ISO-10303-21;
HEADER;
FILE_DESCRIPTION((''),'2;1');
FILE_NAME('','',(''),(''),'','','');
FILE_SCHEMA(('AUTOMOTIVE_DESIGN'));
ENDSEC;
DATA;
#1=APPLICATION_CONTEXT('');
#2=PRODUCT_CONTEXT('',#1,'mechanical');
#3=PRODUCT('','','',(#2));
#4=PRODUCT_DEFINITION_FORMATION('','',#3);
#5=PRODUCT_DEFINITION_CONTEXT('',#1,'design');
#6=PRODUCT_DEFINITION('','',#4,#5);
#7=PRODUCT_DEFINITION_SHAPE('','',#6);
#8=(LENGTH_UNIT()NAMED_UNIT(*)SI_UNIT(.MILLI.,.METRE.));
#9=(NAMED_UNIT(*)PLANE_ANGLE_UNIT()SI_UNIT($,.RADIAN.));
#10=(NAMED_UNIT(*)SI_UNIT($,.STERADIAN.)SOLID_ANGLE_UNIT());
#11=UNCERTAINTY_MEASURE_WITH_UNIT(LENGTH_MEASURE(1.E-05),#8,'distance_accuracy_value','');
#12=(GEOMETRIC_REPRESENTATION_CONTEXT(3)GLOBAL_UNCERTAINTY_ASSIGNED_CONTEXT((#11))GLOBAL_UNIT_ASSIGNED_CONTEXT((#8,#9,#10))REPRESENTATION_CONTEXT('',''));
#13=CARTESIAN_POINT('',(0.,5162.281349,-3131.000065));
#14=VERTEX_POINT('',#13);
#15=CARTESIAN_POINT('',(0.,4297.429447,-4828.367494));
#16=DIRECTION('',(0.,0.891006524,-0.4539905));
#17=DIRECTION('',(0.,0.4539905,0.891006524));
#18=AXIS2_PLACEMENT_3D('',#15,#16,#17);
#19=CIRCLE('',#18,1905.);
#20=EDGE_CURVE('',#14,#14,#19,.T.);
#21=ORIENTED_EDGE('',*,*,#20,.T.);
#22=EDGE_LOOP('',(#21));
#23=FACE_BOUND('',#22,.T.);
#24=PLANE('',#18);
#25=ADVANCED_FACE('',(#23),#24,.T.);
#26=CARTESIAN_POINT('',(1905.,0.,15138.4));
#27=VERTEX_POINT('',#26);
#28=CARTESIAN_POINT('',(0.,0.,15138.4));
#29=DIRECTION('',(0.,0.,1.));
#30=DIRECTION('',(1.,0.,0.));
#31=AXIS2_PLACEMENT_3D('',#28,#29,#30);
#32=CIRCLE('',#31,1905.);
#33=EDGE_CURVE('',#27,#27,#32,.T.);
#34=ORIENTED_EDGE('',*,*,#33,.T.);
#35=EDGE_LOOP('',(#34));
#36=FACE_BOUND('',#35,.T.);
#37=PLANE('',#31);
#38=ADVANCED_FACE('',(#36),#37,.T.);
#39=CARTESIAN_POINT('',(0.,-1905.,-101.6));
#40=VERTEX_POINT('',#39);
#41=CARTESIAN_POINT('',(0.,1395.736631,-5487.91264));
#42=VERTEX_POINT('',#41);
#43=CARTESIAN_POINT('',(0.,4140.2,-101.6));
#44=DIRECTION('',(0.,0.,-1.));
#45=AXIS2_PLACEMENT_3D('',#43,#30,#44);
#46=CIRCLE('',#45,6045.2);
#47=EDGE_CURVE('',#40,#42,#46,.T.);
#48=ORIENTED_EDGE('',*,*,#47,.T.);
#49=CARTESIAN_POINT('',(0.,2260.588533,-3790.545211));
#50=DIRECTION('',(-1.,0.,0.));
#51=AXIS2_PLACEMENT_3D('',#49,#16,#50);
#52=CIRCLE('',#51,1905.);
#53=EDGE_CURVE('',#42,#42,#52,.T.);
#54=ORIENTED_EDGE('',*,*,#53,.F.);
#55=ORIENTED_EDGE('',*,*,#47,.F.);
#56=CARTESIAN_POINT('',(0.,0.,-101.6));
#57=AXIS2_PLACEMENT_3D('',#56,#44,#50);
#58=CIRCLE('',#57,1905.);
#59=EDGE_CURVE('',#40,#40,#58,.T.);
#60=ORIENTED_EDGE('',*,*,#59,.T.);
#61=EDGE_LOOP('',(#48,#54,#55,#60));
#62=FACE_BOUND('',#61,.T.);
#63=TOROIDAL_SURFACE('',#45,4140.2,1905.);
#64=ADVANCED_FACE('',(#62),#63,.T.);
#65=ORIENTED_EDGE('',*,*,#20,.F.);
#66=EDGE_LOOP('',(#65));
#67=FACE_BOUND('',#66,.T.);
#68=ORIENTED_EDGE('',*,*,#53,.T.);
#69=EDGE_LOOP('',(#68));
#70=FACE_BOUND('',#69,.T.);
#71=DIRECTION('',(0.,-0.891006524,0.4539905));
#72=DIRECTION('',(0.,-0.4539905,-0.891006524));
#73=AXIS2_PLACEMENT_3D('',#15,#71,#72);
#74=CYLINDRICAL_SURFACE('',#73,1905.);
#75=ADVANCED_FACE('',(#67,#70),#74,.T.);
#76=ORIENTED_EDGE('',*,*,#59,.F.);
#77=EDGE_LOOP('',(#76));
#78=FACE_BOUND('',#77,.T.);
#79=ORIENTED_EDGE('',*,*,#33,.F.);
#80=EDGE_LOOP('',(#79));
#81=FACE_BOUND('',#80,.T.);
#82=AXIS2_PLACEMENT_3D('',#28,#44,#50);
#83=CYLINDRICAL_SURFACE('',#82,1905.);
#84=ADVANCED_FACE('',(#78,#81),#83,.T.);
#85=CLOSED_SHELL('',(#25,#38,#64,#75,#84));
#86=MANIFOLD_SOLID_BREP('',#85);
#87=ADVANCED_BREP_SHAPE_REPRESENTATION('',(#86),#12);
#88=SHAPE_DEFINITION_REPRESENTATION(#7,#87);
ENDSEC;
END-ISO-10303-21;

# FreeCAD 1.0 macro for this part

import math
import FreeCAD as App
import Part
import Sketcher
from FreeCAD import Vector
Q = App.Units.Quantity

doc = App.newDocument("Part")
body = doc.addObject("PartDesign::Body", "Body")

sketch1 = doc.addObject("Sketcher::SketchObject", "Sketch")
body.addObject(sketch1)
sketch1.AttachmentSupport = (doc.XY_Plane, [""])
sketch1.MapMode = "FlatFace"
sketch1.addGeometry(Part.Circle(Vector(0, 0, 0), Vector(0, 0, 1), 1905), False)
sketch1.addConstraint([
    Sketcher.Constraint("Coincident", 0, 3, -1, 1),
    Sketcher.Constraint("Diameter", 0, Q("150 in")),
])
pad1 = doc.addObject("PartDesign::Pad", "Pad")
body.addObject(pad1)
pad1.Profile = sketch1
pad1.Length = Q("596 in")

sketch2 = doc.addObject("Sketcher::SketchObject", "Sketch001")
body.addObject(sketch2)
sketch2.AttachmentSupport = (doc.XY_Plane, [""])
sketch2.MapMode = "FlatFace"
sketch2.addGeometry(Part.Circle(Vector(0, 0, 0), Vector(0, 0, 1), 1905), False)
sketch2.addConstraint([
    Sketcher.Constraint("Coincident", 0, 3, -1, 1),
    Sketcher.Constraint("Diameter", 0, Q("150 in")),
])

sketch3 = doc.addObject("Sketcher::SketchObject", "Sketch002")
body.addObject(sketch3)
sketch3.AttachmentSupport = (doc.YZ_Plane, [""])
sketch3.MapMode = "FlatFace"
sketch3.addGeometry([
    Part.LineSegment(Vector(0, 0, 0), Vector(0, -102, 0)),
    Part.ArcOfCircle(Part.Circle(Vector(4140, -102, 0), Vector(0, 0, 1), 4140), math.radians(180), math.radians(243)),
], False)
sketch3.addConstraint([
    Sketcher.Constraint("Tangent", 0, 2, 1, 1),
    Sketcher.Constraint("Vertical", 0),
    Sketcher.Constraint("Coincident", 0, 1, -1, 1),
    Sketcher.Constraint("Radius", 1, Q("163 in")),
    Sketcher.Constraint("DistanceY", 0, 2, 0, 1, Q("4 in")),
    Sketcher.Constraint("DistanceY", 1, 2, -1, 1, 3790.545211),
])
doc.recompute()

additivepipe = doc.addObject("PartDesign::AdditivePipe", "AdditivePipe")
body.addObject(additivepipe)
additivepipe.Profile = sketch2
additivepipe.Spine = (sketch3, ["Edge1", "Edge2"])

sketch4 = doc.addObject("Sketcher::SketchObject", "Sketch003")
body.addObject(sketch4)
sketch4.Placement = App.Placement(Vector(0, 3327.972314, -1695.686589), App.Rotation(Vector(1, 0, 0), Vector(0, -0.4539905, -0.891006524), Vector(0, 0.891006524, -0.4539905), "ZXY"))
sketch4.addGeometry(Part.Circle(Vector(0, 2351, 0), Vector(0, 0, 1), 1905), False)
sketch4.addConstraint([
    Sketcher.Constraint("PointOnObject", 0, 3, -2),
    Sketcher.Constraint("Diameter", 0, Q("150 in")),
    Sketcher.Constraint("DistanceY", -1, 1, 0, 3, 2351.114796),
])
pad2 = doc.addObject("PartDesign::Pad", "Pad001")
body.addObject(pad2)
pad2.Profile = sketch4
pad2.Length = Q("90 in")

doc.recompute()
